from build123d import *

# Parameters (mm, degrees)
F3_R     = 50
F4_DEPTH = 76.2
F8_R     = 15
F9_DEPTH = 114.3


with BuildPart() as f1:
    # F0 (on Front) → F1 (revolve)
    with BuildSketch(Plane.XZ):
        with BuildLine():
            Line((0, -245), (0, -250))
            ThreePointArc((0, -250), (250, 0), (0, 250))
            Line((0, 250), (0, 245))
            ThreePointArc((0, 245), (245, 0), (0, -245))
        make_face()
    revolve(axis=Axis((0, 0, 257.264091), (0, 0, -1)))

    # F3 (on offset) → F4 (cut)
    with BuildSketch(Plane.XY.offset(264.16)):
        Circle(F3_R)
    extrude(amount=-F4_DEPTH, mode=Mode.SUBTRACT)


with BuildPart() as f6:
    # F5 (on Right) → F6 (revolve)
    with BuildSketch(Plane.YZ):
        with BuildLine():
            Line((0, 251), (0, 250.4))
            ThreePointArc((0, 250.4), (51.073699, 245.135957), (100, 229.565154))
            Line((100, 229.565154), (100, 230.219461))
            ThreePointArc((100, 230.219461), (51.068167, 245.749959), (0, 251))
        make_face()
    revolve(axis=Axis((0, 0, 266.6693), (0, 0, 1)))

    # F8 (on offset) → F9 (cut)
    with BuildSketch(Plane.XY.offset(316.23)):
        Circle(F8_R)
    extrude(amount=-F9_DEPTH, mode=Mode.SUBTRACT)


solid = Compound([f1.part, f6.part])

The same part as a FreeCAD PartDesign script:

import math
import FreeCAD as App
import Part
import Sketcher

V = App.Vector
Q = App.Units.Quantity

doc = App.newDocument("Part")
body = doc.addObject("PartDesign::Body", "Body")

# Sketch on XZ plane
sketch1 = body.newObject("Sketcher::SketchObject", "Sketch")
sketch1.AttachmentSupport = (doc.getObject("XZ_Plane"), [""])
sketch1.MapMode = "FlatFace"
sketch1.addGeometry(Part.LineSegment(V(0, -245, 0), V(0, -250, 0)), False)
sketch1.addGeometry(Part.ArcOfCircle(Part.Circle(V(0, 0, 0), V(0, 0, 1), 250), math.radians(-90), math.radians(90)), False)
sketch1.addGeometry(Part.LineSegment(V(0, 250, 0), V(0, 245, 0)), False)
sketch1.addGeometry(Part.ArcOfCircle(Part.Circle(V(0, 0, 0), V(0, 0, 1), 245), math.radians(-90), math.radians(90)), False)
sketch1.addConstraint(Sketcher.Constraint("Coincident", 0, 2, 1, 1))
sketch1.addConstraint(Sketcher.Constraint("Coincident", 1, 2, 2, 1))
sketch1.addConstraint(Sketcher.Constraint("Coincident", 2, 2, 3, 2))
sketch1.addConstraint(Sketcher.Constraint("Coincident", 3, 1, 0, 1))
sketch1.addConstraint(Sketcher.Constraint("Vertical", 0))
sketch1.addConstraint(Sketcher.Constraint("Vertical", 2))
sketch1.addConstraint(Sketcher.Constraint("Coincident", 1, 3, -1, 1))
sketch1.addConstraint(Sketcher.Constraint("Coincident", 3, 3, -1, 1))
sketch1.addConstraint(Sketcher.Constraint("PointOnObject", 0, 2, -2))
sketch1.addConstraint(Sketcher.Constraint("PointOnObject", 1, 2, -2))
sketch1.addConstraint(Sketcher.Constraint("Radius", 1, Q("250 mm")))
sketch1.addConstraint(Sketcher.Constraint("Radius", 3, Q("245 mm")))
revolution = body.newObject("PartDesign::Revolution", "Revolution")
revolution.Profile = sketch1
revolution.ReferenceAxis = (sketch1, ["V_Axis"])
revolution.Angle = 360

# Sketch on XY plane
sketch2 = body.newObject("Sketcher::SketchObject", "Sketch001")
sketch2.AttachmentSupport = (doc.getObject("XY_Plane"), [""])
sketch2.MapMode = "FlatFace"
sketch2.AttachmentOffset = App.Placement(V(0, 0, 264.16), App.Rotation())
sketch2.addGeometry(Part.Circle(V(0, 0, 0), V(0, 0, 1), 50), False)
sketch2.addConstraint(Sketcher.Constraint("Coincident", 0, 3, -1, 1))
sketch2.addConstraint(Sketcher.Constraint("Diameter", 0, Q("100 mm")))
pocket1 = body.newObject("PartDesign::Pocket", "Pocket")
pocket1.Profile = sketch2
pocket1.Length = 76.2
body2 = doc.addObject("PartDesign::Body", "Body001")

# Sketch on YZ plane
sketch3 = body2.newObject("Sketcher::SketchObject", "Sketch002")
sketch3.AttachmentSupport = (doc.getObject("YZ_Plane001"), [""])
sketch3.MapMode = "FlatFace"
sketch3.addGeometry(Part.LineSegment(V(0, 251, 0), V(0, 250.4, 0)), False)
sketch3.addGeometry(Part.ArcOfCircle(Part.Circle(V(0.000003, 0.000017, 0), V(0, 0, 1), 250.399983), math.radians(66.46176), math.radians(90.000001)), False)
sketch3.addGeometry(Part.LineSegment(V(100, 229.565154, 0), V(100, 230.219461, 0)), False)
sketch3.addGeometry(Part.ArcOfCircle(Part.Circle(V(-0.000001, -0.000008, 0), V(0, 0, 1), 251.000008), math.radians(66.52141), math.radians(90)), False)
sketch3.addConstraint(Sketcher.Constraint("Coincident", 0, 2, 1, 2))
sketch3.addConstraint(Sketcher.Constraint("Coincident", 1, 1, 2, 1))
sketch3.addConstraint(Sketcher.Constraint("Coincident", 2, 2, 3, 1))
sketch3.addConstraint(Sketcher.Constraint("Coincident", 3, 2, 0, 1))
sketch3.addConstraint(Sketcher.Constraint("Vertical", 0))
sketch3.addConstraint(Sketcher.Constraint("Vertical", 2))
sketch3.addConstraint(Sketcher.Constraint("Coincident", 3, 3, -1, 1))
sketch3.addConstraint(Sketcher.Constraint("PointOnObject", 0, 2, -2))
sketch3.addConstraint(Sketcher.Constraint("DistanceY", 0, 2, 0, 1, Q("0.6 mm")))
sketch3.addConstraint(Sketcher.Constraint("DistanceX", -1, 1, 1, 1, Q("100 mm")))
sketch3.addConstraint(Sketcher.Constraint("DistanceY", -1, 1, 3, 2, Q("251 mm")))
sketch3.addConstraint(Sketcher.Constraint("Radius", 1, Q("250.399983 mm")))
sketch3.addConstraint(Sketcher.Constraint("DistanceY", 2, 1, 2, 2, Q("0.654307 mm")))
revolution2 = body2.newObject("PartDesign::Revolution", "Revolution001")
revolution2.Profile = sketch3
revolution2.ReferenceAxis = (sketch3, ["V_Axis"])
revolution2.Angle = 360

# Sketch on XY plane
sketch4 = body2.newObject("Sketcher::SketchObject", "Sketch003")
sketch4.AttachmentSupport = (doc.getObject("XY_Plane001"), [""])
sketch4.MapMode = "FlatFace"
sketch4.AttachmentOffset = App.Placement(V(0, 0, 316.23), App.Rotation())
sketch4.addGeometry(Part.Circle(V(0, 0, 0), V(0, 0, 1), 15), False)
sketch4.addConstraint(Sketcher.Constraint("Coincident", 0, 3, -1, 1))
sketch4.addConstraint(Sketcher.Constraint("Diameter", 0, Q("30 mm")))
pocket2 = body2.newObject("PartDesign::Pocket", "Pocket001")
pocket2.Profile = sketch4
pocket2.Length = 114.3

doc.recompute()
